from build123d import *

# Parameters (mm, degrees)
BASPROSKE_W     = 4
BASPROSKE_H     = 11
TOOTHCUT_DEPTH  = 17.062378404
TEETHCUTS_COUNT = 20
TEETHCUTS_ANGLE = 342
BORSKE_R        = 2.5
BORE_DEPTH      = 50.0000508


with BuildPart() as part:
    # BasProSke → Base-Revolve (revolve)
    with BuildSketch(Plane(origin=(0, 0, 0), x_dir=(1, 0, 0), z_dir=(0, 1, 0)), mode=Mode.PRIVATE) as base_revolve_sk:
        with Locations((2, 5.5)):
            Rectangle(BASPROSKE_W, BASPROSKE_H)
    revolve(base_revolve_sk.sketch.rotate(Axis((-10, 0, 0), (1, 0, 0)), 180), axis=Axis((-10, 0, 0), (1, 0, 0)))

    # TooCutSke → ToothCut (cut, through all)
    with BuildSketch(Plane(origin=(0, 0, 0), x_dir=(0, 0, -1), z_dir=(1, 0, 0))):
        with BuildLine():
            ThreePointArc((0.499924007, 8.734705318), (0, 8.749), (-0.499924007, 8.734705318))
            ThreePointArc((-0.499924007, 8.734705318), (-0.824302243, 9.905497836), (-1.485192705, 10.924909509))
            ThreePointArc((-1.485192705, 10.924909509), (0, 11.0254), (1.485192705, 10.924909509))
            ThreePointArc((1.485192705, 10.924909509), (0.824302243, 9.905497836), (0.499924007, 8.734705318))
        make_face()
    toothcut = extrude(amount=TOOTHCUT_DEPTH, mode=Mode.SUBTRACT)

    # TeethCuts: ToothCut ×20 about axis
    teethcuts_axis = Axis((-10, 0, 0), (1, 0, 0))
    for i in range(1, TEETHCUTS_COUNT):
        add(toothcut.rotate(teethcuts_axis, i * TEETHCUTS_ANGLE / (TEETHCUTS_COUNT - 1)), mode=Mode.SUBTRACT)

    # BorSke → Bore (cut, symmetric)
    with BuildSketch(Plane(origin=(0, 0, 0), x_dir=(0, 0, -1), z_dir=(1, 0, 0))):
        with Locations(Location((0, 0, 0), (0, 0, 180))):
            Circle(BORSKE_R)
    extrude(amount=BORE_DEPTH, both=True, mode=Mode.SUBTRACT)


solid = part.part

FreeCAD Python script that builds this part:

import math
import FreeCAD as App
import Part
import Sketcher

doc = App.newDocument("Part")
params = doc.addObject("Spreadsheet::Sheet", "Params")
for row, (alias, value) in enumerate([
    ("sketch1_width", "4 mm"),
    ("sketch1_height", "11 mm"),
    ("revolution_angle", "360 deg"),
    ("sketch2_radius", "4 mm"),
    ("sketch3_diameter", "5 mm"),
    ("pocket2_length", "100.000102 mm"),
], start=1):
    params.set(f"A{row}", alias)
    params.set(f"B{row}", "=" + value)
    params.setAlias(f"B{row}", alias)

body = doc.addObject("PartDesign::Body", "Body")

# Sketch on XZ plane
sketch1 = doc.addObject("Sketcher::SketchObject", "Sketch")
body.addObject(sketch1)
sketch1.AttachmentSupport = (doc.XZ_Plane, [""])
sketch1.MapMode = "FlatFace"
sketch1.addGeometry([
    Part.LineSegment(App.Vector(0, -11, 0), App.Vector(0, 0, 0)),
    Part.LineSegment(App.Vector(0, 0, 0), App.Vector(4, 0, 0)),
    Part.LineSegment(App.Vector(4, 0, 0), App.Vector(4, -11, 0)),
    Part.LineSegment(App.Vector(4, -11, 0), App.Vector(0, -11, 0)),
], False)
sketch1.addConstraint([
    Sketcher.Constraint("Coincident", 0, 2, 1, 1),
    Sketcher.Constraint("Coincident", 1, 2, 2, 1),
    Sketcher.Constraint("Coincident", 2, 2, 3, 1),
    Sketcher.Constraint("Coincident", 3, 2, 0, 1),
    Sketcher.Constraint("Vertical", 0),
    Sketcher.Constraint("Horizontal", 1),
    Sketcher.Constraint("Vertical", 2),
    Sketcher.Constraint("Horizontal", 3),
    Sketcher.Constraint("Coincident", 0, 2, -1, 1),
    Sketcher.Constraint("DistanceX", 1, 1, 1, 2, 4.0),
    Sketcher.Constraint("DistanceY", 0, 1, 0, 2, 11.0),
])
sketch1.setExpression("Constraints[9]", "Params.sketch1_width")
sketch1.setExpression("Constraints[10]", "Params.sketch1_height")
revolution = doc.addObject("PartDesign::Revolution", "Revolution")
body.addObject(revolution)
revolution.Profile = sketch1
revolution.ReferenceAxis = (sketch1, ["H_Axis"])
revolution.setExpression("Angle", "Params.revolution_angle")

# Sketch on YZ plane
sketch2 = doc.addObject("Sketcher::SketchObject", "Sketch001")
body.addObject(sketch2)
sketch2.AttachmentSupport = (doc.YZ_Plane, [""])
sketch2.MapMode = "FlatFace"
sketch2.addGeometry([
    Part.ArcOfCircle(Part.Circle(App.Vector(0, 0, 0), App.Vector(0, 0, 1), 8.7), math.radians(-3.28), math.radians(3.28)),
    Part.ArcOfCircle(Part.Circle(App.Vector(8.3, -4.5, 0), App.Vector(0, 0, 1), 4), math.radians(48), math.radians(83)),
    Part.ArcOfCircle(Part.Circle(App.Vector(0, 0, 0), App.Vector(0, 0, 1), 11), math.radians(-7.74), math.radians(7.74)),
    Part.ArcOfCircle(Part.Circle(App.Vector(8.3, 4.5, 0), App.Vector(0, 0, 1), 4), math.radians(-83), math.radians(-48)),
], False)
sketch2.addConstraint([
    Sketcher.Constraint("Coincident", 0, 1, 1, 2),
    Sketcher.Constraint("Coincident", 1, 1, 2, 1),
    Sketcher.Constraint("Coincident", 2, 2, 3, 2),
    Sketcher.Constraint("Coincident", 3, 1, 0, 2),
    Sketcher.Constraint("Coincident", 0, 3, -1, 1),
    Sketcher.Constraint("Coincident", 2, 3, -1, 1),
    Sketcher.Constraint("Equal", 1, 3),
    Sketcher.Constraint("Symmetric", 1, 3, 3, 3, -1),
    Sketcher.Constraint("Radius", 1, 4.0),
    Sketcher.Constraint("Radius", 0, 8.749),
    Sketcher.Constraint("Radius", 2, 11.0254),
    Sketcher.Constraint("DistanceY", 1, 3, -1, 1, 4.47219),
    Sketcher.Constraint("DistanceX", -1, 1, 1, 1, 10.92491),
])
sketch2.setExpression("Constraints[8]", "Params.sketch2_radius")
pocket1 = doc.addObject("PartDesign::Pocket", "Pocket")
body.addObject(pocket1)
pocket1.Profile = sketch2
pocket1.Type = "ThroughAll"
pocket1.Reversed = True
doc.recompute()

polarpattern = doc.addObject("PartDesign::PolarPattern", "PolarPattern")
body.addObject(polarpattern)
polarpattern.Originals = [pocket1]
polarpattern.Axis = (doc.X_Axis, [""])
polarpattern.Angle = 360
polarpattern.Occurrences = 20
body.Tip = polarpattern

# Sketch on YZ plane
sketch3 = doc.addObject("Sketcher::SketchObject", "Sketch002")
body.addObject(sketch3)
sketch3.AttachmentSupport = (doc.YZ_Plane, [""])
sketch3.MapMode = "FlatFace"
sketch3.addGeometry(Part.Circle(App.Vector(0, 0, 0), App.Vector(0, 0, 1), 2.5), False)
sketch3.addConstraint([
    Sketcher.Constraint("Coincident", 0, 3, -1, 1),
    Sketcher.Constraint("Diameter", 0, 5.0),
])
sketch3.setExpression("Constraints[1]", "Params.sketch3_diameter")
pocket2 = doc.addObject("PartDesign::Pocket", "Pocket001")
body.addObject(pocket2)
pocket2.Profile = sketch3
pocket2.setExpression("Length", "Params.pocket2_length")
pocket2.Midplane = True

doc.recompute()
